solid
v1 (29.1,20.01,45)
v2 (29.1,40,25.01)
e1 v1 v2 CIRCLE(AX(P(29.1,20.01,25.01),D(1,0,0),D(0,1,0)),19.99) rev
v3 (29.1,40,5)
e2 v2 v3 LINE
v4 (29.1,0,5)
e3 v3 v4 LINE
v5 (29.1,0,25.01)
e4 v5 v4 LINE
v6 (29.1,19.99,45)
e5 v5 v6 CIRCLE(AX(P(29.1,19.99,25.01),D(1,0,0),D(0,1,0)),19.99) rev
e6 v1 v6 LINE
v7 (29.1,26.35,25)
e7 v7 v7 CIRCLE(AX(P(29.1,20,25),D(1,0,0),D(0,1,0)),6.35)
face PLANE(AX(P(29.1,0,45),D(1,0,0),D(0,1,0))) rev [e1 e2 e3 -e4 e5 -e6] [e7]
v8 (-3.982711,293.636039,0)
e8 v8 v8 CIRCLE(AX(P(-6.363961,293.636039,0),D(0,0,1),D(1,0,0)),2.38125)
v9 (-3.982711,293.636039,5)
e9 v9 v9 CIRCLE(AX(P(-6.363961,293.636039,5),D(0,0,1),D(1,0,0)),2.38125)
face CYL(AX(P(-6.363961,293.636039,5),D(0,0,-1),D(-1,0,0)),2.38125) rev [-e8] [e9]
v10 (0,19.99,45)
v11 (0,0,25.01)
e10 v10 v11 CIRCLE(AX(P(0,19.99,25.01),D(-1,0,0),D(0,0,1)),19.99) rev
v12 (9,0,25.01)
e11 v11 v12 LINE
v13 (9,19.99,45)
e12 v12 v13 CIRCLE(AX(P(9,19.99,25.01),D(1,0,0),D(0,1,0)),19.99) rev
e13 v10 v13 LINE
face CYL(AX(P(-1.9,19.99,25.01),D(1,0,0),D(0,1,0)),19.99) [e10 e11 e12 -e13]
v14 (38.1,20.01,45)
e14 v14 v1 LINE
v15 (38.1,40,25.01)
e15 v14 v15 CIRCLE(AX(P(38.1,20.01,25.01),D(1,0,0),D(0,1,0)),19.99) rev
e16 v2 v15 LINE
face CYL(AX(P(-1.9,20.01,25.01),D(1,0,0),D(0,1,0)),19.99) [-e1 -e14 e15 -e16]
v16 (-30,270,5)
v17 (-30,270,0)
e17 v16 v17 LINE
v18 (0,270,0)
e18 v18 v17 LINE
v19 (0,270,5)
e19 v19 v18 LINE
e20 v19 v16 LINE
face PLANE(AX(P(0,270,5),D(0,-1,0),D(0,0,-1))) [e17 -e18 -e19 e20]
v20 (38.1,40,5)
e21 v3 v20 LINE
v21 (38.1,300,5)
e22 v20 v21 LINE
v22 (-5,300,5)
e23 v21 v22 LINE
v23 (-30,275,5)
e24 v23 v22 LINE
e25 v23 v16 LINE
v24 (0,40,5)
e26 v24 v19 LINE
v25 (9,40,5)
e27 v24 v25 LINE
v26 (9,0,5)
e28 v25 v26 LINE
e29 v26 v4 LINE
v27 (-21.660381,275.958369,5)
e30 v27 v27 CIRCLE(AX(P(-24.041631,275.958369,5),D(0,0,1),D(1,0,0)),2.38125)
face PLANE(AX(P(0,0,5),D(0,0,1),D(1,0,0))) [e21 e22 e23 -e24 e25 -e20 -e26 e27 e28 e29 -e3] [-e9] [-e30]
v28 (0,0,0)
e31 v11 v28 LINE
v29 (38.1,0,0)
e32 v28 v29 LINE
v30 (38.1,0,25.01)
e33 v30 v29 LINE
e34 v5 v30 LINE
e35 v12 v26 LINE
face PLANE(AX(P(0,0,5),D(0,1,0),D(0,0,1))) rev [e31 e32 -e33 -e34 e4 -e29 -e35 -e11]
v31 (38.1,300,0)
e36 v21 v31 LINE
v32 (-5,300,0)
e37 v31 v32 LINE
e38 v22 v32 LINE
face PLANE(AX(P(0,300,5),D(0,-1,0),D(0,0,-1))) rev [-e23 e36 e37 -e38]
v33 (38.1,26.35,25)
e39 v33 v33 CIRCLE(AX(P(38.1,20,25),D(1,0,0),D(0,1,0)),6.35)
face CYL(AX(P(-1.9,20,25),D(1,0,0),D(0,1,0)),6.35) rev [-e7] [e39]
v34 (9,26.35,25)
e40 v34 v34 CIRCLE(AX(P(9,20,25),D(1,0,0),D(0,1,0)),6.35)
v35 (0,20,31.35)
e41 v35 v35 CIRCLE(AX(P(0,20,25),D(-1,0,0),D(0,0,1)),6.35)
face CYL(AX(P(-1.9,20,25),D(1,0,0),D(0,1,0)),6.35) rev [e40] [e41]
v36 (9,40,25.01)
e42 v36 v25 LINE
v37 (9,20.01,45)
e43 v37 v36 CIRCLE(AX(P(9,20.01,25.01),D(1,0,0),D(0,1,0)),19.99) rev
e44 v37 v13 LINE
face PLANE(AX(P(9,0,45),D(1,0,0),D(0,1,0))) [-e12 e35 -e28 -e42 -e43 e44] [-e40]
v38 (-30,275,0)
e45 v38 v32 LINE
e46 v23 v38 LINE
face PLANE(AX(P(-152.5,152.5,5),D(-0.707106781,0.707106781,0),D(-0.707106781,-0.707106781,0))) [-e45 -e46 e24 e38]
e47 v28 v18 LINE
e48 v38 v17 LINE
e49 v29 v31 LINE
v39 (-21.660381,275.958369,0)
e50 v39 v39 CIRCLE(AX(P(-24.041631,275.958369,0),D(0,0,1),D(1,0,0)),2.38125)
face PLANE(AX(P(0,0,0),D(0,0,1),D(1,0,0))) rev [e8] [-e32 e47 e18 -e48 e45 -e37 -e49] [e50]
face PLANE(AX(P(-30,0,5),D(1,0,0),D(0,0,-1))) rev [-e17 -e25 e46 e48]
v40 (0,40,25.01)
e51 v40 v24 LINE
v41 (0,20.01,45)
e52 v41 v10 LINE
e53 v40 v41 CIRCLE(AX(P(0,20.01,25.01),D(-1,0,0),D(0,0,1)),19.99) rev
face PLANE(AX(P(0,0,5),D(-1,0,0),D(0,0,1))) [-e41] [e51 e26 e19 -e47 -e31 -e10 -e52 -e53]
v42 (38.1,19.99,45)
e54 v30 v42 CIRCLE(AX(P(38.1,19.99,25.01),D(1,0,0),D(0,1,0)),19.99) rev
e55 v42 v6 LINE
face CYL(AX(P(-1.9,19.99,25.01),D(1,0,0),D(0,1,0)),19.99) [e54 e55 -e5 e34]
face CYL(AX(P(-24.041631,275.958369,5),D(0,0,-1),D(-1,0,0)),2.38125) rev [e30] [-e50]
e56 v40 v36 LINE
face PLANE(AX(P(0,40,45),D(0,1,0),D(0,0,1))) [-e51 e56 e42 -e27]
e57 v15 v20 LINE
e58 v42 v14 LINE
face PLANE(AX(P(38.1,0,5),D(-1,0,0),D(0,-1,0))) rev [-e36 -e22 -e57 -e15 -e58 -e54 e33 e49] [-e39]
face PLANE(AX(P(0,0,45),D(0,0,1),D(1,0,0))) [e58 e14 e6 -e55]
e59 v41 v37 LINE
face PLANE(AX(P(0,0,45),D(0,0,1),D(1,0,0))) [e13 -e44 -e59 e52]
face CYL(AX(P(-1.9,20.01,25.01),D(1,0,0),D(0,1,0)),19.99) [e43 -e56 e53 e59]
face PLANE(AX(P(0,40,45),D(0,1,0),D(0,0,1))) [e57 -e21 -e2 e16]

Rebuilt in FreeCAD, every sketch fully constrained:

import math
import FreeCAD as App
import Part
import Sketcher
Q = App.Units.Quantity

doc = App.newDocument("Part")
params = doc.addObject("Spreadsheet::Sheet", "Params")
for row, (alias, value) in enumerate([
    ("sketch1_width", "30 mm"),
    ("sketch1_height", "5 mm"),
    ("sketch1_height2", "270 mm"),
    ("sketch1_height3", "300 mm"),
    ("sketch1_width2", "38.1 mm"),
    ("pad1_length", "5 mm"),
    ("sketch2_width", "9 mm"),
    ("sketch2_height", "40 mm"),
    ("pad2_length", "40 mm"),
    ("sketch3_radius", "6.35 mm"),
    ("sketch3_radius2", "19.99 mm"),
    ("pocket1_length", "40 mm"),
], start=1):
    params.set(f"A{row}", alias)
    params.set(f"B{row}", "=" + value)
    params.setAlias(f"B{row}", alias)

body = doc.addObject("PartDesign::Body", "Body")

# Sketch on XY plane
sketch1 = body.newObject("Sketcher::SketchObject", "Sketch")
sketch1.AttachmentSupport = (doc.getObject("XY_Plane"), [""])
sketch1.MapMode = "FlatFace"
sketch1.addGeometry(Part.LineSegment(App.Vector(-30, 275, 0), App.Vector(-30, 270, 0)), False)
sketch1.addGeometry(Part.LineSegment(App.Vector(-30, 270, 0), App.Vector(0, 270, 0)), False)
sketch1.addGeometry(Part.LineSegment(App.Vector(0, 270, 0), App.Vector(0, 0, 0)), False)
sketch1.addGeometry(Part.LineSegment(App.Vector(0, 0, 0), App.Vector(38.1, 0, 0)), False)
sketch1.addGeometry(Part.LineSegment(App.Vector(38.1, 0, 0), App.Vector(38.1, 300, 0)), False)
sketch1.addGeometry(Part.LineSegment(App.Vector(38.1, 300, 0), App.Vector(-5, 300, 0)), False)
sketch1.addGeometry(Part.LineSegment(App.Vector(-5, 300, 0), App.Vector(-30, 275, 0)), False)
sketch1.addGeometry(Part.ArcOfCircle(Part.Circle(App.Vector(-24, 276, 0), App.Vector(0, 0, 1), 2.4), math.radians(45), math.radians(225)), False)
sketch1.addGeometry(Part.ArcOfCircle(Part.Circle(App.Vector(-24, 276, 0), App.Vector(0, 0, 1), 2.4), math.radians(0), math.radians(45)), False)
sketch1.addGeometry(Part.ArcOfCircle(Part.Circle(App.Vector(-24, 276, 0), App.Vector(0, 0, 1), 2.4), math.radians(-135), math.radians(0)), False)
sketch1.addGeometry(Part.ArcOfCircle(Part.Circle(App.Vector(-6.4, 293.6, 0), App.Vector(0, 0, 1), 2.4), math.radians(45), math.radians(225)), False)
sketch1.addGeometry(Part.ArcOfCircle(Part.Circle(App.Vector(-6.4, 293.6, 0), App.Vector(0, 0, 1), 2.4), math.radians(0), math.radians(45)), False)
sketch1.addGeometry(Part.ArcOfCircle(Part.Circle(App.Vector(-6.4, 293.6, 0), App.Vector(0, 0, 1), 2.4), math.radians(-135), math.radians(0)), False)
sketch1.addConstraint(Sketcher.Constraint("Coincident", 0, 2, 1, 1))
sketch1.addConstraint(Sketcher.Constraint("Coincident", 1, 2, 2, 1))
sketch1.addConstraint(Sketcher.Constraint("Coincident", 2, 2, 3, 1))
sketch1.addConstraint(Sketcher.Constraint("Coincident", 3, 2, 4, 1))
sketch1.addConstraint(Sketcher.Constraint("Coincident", 4, 2, 5, 1))
sketch1.addConstraint(Sketcher.Constraint("Coincident", 5, 2, 6, 1))
sketch1.addConstraint(Sketcher.Constraint("Coincident", 6, 2, 0, 1))
sketch1.addConstraint(Sketcher.Constraint("Tangent", 7, 1, 8, 2))
sketch1.addConstraint(Sketcher.Constraint("Tangent", 8, 1, 9, 2))
sketch1.addConstraint(Sketcher.Constraint("Tangent", 9, 1, 7, 2))
sketch1.addConstraint(Sketcher.Constraint("Tangent", 10, 1, 11, 2))
sketch1.addConstraint(Sketcher.Constraint("Tangent", 11, 1, 12, 2))
sketch1.addConstraint(Sketcher.Constraint("Tangent", 12, 1, 10, 2))
sketch1.addConstraint(Sketcher.Constraint("Vertical", 0))
sketch1.addConstraint(Sketcher.Constraint("Horizontal", 1))
sketch1.addConstraint(Sketcher.Constraint("Vertical", 2))
sketch1.addConstraint(Sketcher.Constraint("Horizontal", 3))
sketch1.addConstraint(Sketcher.Constraint("Vertical", 4))
sketch1.addConstraint(Sketcher.Constraint("Horizontal", 5))
sketch1.addConstraint(Sketcher.Constraint("Coincident", 2, 2, -1, 1))
sketch1.addConstraint(Sketcher.Constraint("Equal", 9, 10))
sketch1.addConstraint(Sketcher.Constraint("Horizontal", 9, 3, 8, 1))
sketch1.addConstraint(Sketcher.Constraint("Horizontal", 12, 3, 11, 1))
sketch1.addConstraint(Sketcher.Constraint("DistanceX", 1, 1, 1, 2, Q("30 mm")))
sketch1.addConstraint(Sketcher.Constraint("DistanceY", 0, 2, 0, 1, Q("5 mm")))
sketch1.addConstraint(Sketcher.Constraint("DistanceY", 2, 2, 2, 1, Q("270 mm")))
sketch1.addConstraint(Sketcher.Constraint("DistanceY", 4, 1, 4, 2, Q("300 mm")))
sketch1.addConstraint(Sketcher.Constraint("Angle", 6, Q("-135 deg")))
sketch1.addConstraint(Sketcher.Constraint("DistanceX", 3, 1, 3, 2, Q("38.1 mm")))
sketch1.addConstraint(Sketcher.Constraint("Radius", 7, Q("2.38125 mm")))
sketch1.addConstraint(Sketcher.Constraint("DistanceX", 9, 3, 7, 1, Q("1.683798 mm")))
sketch1.addConstraint(Sketcher.Constraint("DistanceX", 9, 1, 8, 3, Q("1.683798 mm")))
sketch1.addConstraint(Sketcher.Constraint("DistanceX", 11, 3, 10, 1, Q("1.683798 mm")))
sketch1.addConstraint(Sketcher.Constraint("DistanceX", 12, 1, 10, 3, Q("1.683798 mm")))
sketch1.addConstraint(Sketcher.Constraint("DistanceX", 7, 3, -1, 1, Q("24.041631 mm")))
sketch1.addConstraint(Sketcher.Constraint("DistanceY", -1, 1, 7, 3, Q("275.958369 mm")))
sketch1.addConstraint(Sketcher.Constraint("DistanceX", 10, 3, -1, 1, Q("6.363961 mm")))
sketch1.addConstraint(Sketcher.Constraint("DistanceY", -1, 1, 10, 3, Q("293.636039 mm")))
sketch1.setExpression("Constraints[23]", "Params.sketch1_width")
sketch1.setExpression("Constraints[24]", "Params.sketch1_height")
sketch1.setExpression("Constraints[25]", "Params.sketch1_height2")
sketch1.setExpression("Constraints[26]", "Params.sketch1_height3")
sketch1.setExpression("Constraints[28]", "Params.sketch1_width2")
pad1 = body.newObject("PartDesign::Pad", "Pad")
pad1.Profile = sketch1
pad1.setExpression("Length", "Params.pad1_length")

# Sketch on XY plane
sketch2 = body.newObject("Sketcher::SketchObject", "Sketch001")
sketch2.AttachmentSupport = (doc.getObject("XY_Plane"), [""])
sketch2.MapMode = "FlatFace"
sketch2.AttachmentOffset = App.Placement(App.Vector(0, 0, 5), App.Rotation())
sketch2.addGeometry(Part.LineSegment(App.Vector(0, 40, 0), App.Vector(0, 0, 0)), False)
sketch2.addGeometry(Part.LineSegment(App.Vector(0, 0, 0), App.Vector(9, 0, 0)), False)
sketch2.addGeometry(Part.LineSegment(App.Vector(9, 0, 0), App.Vector(9, 40, 0)), False)
sketch2.addGeometry(Part.LineSegment(App.Vector(9, 40, 0), App.Vector(0, 40, 0)), False)
sketch2.addGeometry(Part.LineSegment(App.Vector(29, 40, 0), App.Vector(29, 0, 0)), False)
sketch2.addGeometry(Part.LineSegment(App.Vector(29, 0, 0), App.Vector(38, 0, 0)), False)
sketch2.addGeometry(Part.LineSegment(App.Vector(38, 0, 0), App.Vector(38, 40, 0)), False)
sketch2.addGeometry(Part.LineSegment(App.Vector(38, 40, 0), App.Vector(29, 40, 0)), False)
sketch2.addConstraint(Sketcher.Constraint("Coincident", 0, 2, 1, 1))
sketch2.addConstraint(Sketcher.Constraint("Coincident", 1, 2, 2, 1))
sketch2.addConstraint(Sketcher.Constraint("Coincident", 2, 2, 3, 1))
sketch2.addConstraint(Sketcher.Constraint("Coincident", 3, 2, 0, 1))
sketch2.addConstraint(Sketcher.Constraint("Coincident", 4, 2, 5, 1))
sketch2.addConstraint(Sketcher.Constraint("Coincident", 5, 2, 6, 1))
sketch2.addConstraint(Sketcher.Constraint("Coincident", 6, 2, 7, 1))
sketch2.addConstraint(Sketcher.Constraint("Coincident", 7, 2, 4, 1))
sketch2.addConstraint(Sketcher.Constraint("Vertical", 0))
sketch2.addConstraint(Sketcher.Constraint("Horizontal", 1))
sketch2.addConstraint(Sketcher.Constraint("Vertical", 2))
sketch2.addConstraint(Sketcher.Constraint("Horizontal", 3))
sketch2.addConstraint(Sketcher.Constraint("Vertical", 4))
sketch2.addConstraint(Sketcher.Constraint("Horizontal", 5))
sketch2.addConstraint(Sketcher.Constraint("Vertical", 6))
sketch2.addConstraint(Sketcher.Constraint("Horizontal", 7))
sketch2.addConstraint(Sketcher.Constraint("Coincident", 0, 2, -1, 1))
sketch2.addConstraint(Sketcher.Constraint("PointOnObject", 4, 2, -1))
sketch2.addConstraint(Sketcher.Constraint("Horizontal", 3, 2, 6, 2))
sketch2.addConstraint(Sketcher.Constraint("Equal", 3, 5))
sketch2.addConstraint(Sketcher.Constraint("DistanceX", 1, 1, 1, 2, Q("9 mm")))
sketch2.addConstraint(Sketcher.Constraint("DistanceY", 0, 2, 0, 1, Q("40 mm")))
sketch2.addConstraint(Sketcher.Constraint("DistanceX", -1, 1, 4, 2, Q("29.1 mm")))
sketch2.setExpression("Constraints[20]", "Params.sketch2_width")
sketch2.setExpression("Constraints[21]", "Params.sketch2_height")
pad2 = body.newObject("PartDesign::Pad", "Pad001")
pad2.Profile = sketch2
pad2.setExpression("Length", "Params.pad2_length")

# Sketch on YZ plane
sketch3 = body.newObject("Sketcher::SketchObject", "Sketch002")
sketch3.AttachmentSupport = (doc.getObject("YZ_Plane"), [""])
sketch3.MapMode = "FlatFace"
sketch3.AttachmentOffset = App.Placement(App.Vector(0, 0, 38.1), App.Rotation())
sketch3.addGeometry(Part.ArcOfCircle(Part.Circle(App.Vector(20, 25, 0), App.Vector(0, 0, 1), 6.4), math.radians(-90), math.radians(-45)), False)
sketch3.addGeometry(Part.ArcOfCircle(Part.Circle(App.Vector(20, 25, 0), App.Vector(0, 0, 1), 6.4), math.radians(-45), math.radians(135)), False)
sketch3.addGeometry(Part.ArcOfCircle(Part.Circle(App.Vector(20, 25, 0), App.Vector(0, 0, 1), 6.4), math.radians(135), math.radians(270)), False)
sketch3.addGeometry(Part.ArcOfCircle(Part.Circle(App.Vector(20, 25, 0), App.Vector(0, 0, 1), 20), math.radians(0), math.radians(90)), False)
sketch3.addGeometry(Part.LineSegment(App.Vector(40, 25, 0), App.Vector(40, 45, 0)), False)
sketch3.addGeometry(Part.LineSegment(App.Vector(40, 45, 0), App.Vector(20, 45, 0)), False)
sketch3.addGeometry(Part.ArcOfCircle(Part.Circle(App.Vector(20, 25, 0), App.Vector(0, 0, 1), 20), math.radians(90), math.radians(135)), False)
sketch3.addGeometry(Part.LineSegment(App.Vector(20, 45, 0), App.Vector(0, 45, 0)), False)
sketch3.addGeometry(Part.LineSegment(App.Vector(0, 45, 0), App.Vector(0, 25, 0)), False)
sketch3.addGeometry(Part.ArcOfCircle(Part.Circle(App.Vector(20, 25, 0), App.Vector(0, 0, 1), 20), math.radians(135), math.radians(180)), False)
sketch3.addConstraint(Sketcher.Constraint("Tangent", 0, 2, 1, 1))
sketch3.addConstraint(Sketcher.Constraint("Tangent", 1, 2, 2, 1))
sketch3.addConstraint(Sketcher.Constraint("Tangent", 2, 2, 0, 1))
sketch3.addConstraint(Sketcher.Constraint("Tangent", 3, 1, 4, 1))
sketch3.addConstraint(Sketcher.Constraint("Coincident", 4, 2, 5, 1))
sketch3.addConstraint(Sketcher.Constraint("Tangent", 5, 2, 3, 2))
sketch3.addConstraint(Sketcher.Constraint("Tangent", 6, 1, 7, 1))
sketch3.addConstraint(Sketcher.Constraint("Coincident", 7, 2, 8, 1))
sketch3.addConstraint(Sketcher.Constraint("Tangent", 8, 2, 9, 2))
sketch3.addConstraint(Sketcher.Constraint("Tangent", 9, 1, 6, 2))
sketch3.addConstraint(Sketcher.Constraint("Vertical", 4))
sketch3.addConstraint(Sketcher.Constraint("Horizontal", 5))
sketch3.addConstraint(Sketcher.Constraint("Horizontal", 7))
sketch3.addConstraint(Sketcher.Constraint("Vertical", 8))
sketch3.addConstraint(Sketcher.Constraint("Equal", 3, 6))
sketch3.addConstraint(Sketcher.Constraint("Equal", 6, 9))
sketch3.addConstraint(Sketcher.Constraint("PointOnObject", 7, 2, -2))
sketch3.addConstraint(Sketcher.Constraint("Horizontal", 3, 3, 6, 3))
sketch3.addConstraint(Sketcher.Constraint("Vertical", 1, 3, 2, 2))
sketch3.addConstraint(Sketcher.Constraint("Radius", 0, Q("6.35 mm")))
sketch3.addConstraint(Sketcher.Constraint("Radius", 3, Q("19.99 mm")))
sketch3.addConstraint(Sketcher.Constraint("DistanceX", -1, 1, 0, 3, Q("20 mm")))
sketch3.addConstraint(Sketcher.Constraint("DistanceY", -1, 1, 0, 3, Q("25 mm")))
sketch3.addConstraint(Sketcher.Constraint("DistanceX", -1, 1, 3, 1, Q("40 mm")))
sketch3.addConstraint(Sketcher.Constraint("DistanceY", -1, 1, 4, 2, Q("45 mm")))
sketch3.addConstraint(Sketcher.Constraint("DistanceX", -1, 1, 0, 2, Q("24.490128 mm")))
sketch3.addConstraint(Sketcher.Constraint("DistanceX", -1, 1, 1, 2, Q("15.509872 mm")))
sketch3.addConstraint(Sketcher.Constraint("DistanceX", -1, 1, 9, 1, Q("5.854935 mm")))
sketch3.setExpression("Constraints[19]", "Params.sketch3_radius")
sketch3.setExpression("Constraints[20]", "Params.sketch3_radius2")
pocket1 = body.newObject("PartDesign::Pocket", "Pocket")
pocket1.Profile = sketch3
pocket1.setExpression("Length", "Params.pocket1_length")

doc.recompute()
